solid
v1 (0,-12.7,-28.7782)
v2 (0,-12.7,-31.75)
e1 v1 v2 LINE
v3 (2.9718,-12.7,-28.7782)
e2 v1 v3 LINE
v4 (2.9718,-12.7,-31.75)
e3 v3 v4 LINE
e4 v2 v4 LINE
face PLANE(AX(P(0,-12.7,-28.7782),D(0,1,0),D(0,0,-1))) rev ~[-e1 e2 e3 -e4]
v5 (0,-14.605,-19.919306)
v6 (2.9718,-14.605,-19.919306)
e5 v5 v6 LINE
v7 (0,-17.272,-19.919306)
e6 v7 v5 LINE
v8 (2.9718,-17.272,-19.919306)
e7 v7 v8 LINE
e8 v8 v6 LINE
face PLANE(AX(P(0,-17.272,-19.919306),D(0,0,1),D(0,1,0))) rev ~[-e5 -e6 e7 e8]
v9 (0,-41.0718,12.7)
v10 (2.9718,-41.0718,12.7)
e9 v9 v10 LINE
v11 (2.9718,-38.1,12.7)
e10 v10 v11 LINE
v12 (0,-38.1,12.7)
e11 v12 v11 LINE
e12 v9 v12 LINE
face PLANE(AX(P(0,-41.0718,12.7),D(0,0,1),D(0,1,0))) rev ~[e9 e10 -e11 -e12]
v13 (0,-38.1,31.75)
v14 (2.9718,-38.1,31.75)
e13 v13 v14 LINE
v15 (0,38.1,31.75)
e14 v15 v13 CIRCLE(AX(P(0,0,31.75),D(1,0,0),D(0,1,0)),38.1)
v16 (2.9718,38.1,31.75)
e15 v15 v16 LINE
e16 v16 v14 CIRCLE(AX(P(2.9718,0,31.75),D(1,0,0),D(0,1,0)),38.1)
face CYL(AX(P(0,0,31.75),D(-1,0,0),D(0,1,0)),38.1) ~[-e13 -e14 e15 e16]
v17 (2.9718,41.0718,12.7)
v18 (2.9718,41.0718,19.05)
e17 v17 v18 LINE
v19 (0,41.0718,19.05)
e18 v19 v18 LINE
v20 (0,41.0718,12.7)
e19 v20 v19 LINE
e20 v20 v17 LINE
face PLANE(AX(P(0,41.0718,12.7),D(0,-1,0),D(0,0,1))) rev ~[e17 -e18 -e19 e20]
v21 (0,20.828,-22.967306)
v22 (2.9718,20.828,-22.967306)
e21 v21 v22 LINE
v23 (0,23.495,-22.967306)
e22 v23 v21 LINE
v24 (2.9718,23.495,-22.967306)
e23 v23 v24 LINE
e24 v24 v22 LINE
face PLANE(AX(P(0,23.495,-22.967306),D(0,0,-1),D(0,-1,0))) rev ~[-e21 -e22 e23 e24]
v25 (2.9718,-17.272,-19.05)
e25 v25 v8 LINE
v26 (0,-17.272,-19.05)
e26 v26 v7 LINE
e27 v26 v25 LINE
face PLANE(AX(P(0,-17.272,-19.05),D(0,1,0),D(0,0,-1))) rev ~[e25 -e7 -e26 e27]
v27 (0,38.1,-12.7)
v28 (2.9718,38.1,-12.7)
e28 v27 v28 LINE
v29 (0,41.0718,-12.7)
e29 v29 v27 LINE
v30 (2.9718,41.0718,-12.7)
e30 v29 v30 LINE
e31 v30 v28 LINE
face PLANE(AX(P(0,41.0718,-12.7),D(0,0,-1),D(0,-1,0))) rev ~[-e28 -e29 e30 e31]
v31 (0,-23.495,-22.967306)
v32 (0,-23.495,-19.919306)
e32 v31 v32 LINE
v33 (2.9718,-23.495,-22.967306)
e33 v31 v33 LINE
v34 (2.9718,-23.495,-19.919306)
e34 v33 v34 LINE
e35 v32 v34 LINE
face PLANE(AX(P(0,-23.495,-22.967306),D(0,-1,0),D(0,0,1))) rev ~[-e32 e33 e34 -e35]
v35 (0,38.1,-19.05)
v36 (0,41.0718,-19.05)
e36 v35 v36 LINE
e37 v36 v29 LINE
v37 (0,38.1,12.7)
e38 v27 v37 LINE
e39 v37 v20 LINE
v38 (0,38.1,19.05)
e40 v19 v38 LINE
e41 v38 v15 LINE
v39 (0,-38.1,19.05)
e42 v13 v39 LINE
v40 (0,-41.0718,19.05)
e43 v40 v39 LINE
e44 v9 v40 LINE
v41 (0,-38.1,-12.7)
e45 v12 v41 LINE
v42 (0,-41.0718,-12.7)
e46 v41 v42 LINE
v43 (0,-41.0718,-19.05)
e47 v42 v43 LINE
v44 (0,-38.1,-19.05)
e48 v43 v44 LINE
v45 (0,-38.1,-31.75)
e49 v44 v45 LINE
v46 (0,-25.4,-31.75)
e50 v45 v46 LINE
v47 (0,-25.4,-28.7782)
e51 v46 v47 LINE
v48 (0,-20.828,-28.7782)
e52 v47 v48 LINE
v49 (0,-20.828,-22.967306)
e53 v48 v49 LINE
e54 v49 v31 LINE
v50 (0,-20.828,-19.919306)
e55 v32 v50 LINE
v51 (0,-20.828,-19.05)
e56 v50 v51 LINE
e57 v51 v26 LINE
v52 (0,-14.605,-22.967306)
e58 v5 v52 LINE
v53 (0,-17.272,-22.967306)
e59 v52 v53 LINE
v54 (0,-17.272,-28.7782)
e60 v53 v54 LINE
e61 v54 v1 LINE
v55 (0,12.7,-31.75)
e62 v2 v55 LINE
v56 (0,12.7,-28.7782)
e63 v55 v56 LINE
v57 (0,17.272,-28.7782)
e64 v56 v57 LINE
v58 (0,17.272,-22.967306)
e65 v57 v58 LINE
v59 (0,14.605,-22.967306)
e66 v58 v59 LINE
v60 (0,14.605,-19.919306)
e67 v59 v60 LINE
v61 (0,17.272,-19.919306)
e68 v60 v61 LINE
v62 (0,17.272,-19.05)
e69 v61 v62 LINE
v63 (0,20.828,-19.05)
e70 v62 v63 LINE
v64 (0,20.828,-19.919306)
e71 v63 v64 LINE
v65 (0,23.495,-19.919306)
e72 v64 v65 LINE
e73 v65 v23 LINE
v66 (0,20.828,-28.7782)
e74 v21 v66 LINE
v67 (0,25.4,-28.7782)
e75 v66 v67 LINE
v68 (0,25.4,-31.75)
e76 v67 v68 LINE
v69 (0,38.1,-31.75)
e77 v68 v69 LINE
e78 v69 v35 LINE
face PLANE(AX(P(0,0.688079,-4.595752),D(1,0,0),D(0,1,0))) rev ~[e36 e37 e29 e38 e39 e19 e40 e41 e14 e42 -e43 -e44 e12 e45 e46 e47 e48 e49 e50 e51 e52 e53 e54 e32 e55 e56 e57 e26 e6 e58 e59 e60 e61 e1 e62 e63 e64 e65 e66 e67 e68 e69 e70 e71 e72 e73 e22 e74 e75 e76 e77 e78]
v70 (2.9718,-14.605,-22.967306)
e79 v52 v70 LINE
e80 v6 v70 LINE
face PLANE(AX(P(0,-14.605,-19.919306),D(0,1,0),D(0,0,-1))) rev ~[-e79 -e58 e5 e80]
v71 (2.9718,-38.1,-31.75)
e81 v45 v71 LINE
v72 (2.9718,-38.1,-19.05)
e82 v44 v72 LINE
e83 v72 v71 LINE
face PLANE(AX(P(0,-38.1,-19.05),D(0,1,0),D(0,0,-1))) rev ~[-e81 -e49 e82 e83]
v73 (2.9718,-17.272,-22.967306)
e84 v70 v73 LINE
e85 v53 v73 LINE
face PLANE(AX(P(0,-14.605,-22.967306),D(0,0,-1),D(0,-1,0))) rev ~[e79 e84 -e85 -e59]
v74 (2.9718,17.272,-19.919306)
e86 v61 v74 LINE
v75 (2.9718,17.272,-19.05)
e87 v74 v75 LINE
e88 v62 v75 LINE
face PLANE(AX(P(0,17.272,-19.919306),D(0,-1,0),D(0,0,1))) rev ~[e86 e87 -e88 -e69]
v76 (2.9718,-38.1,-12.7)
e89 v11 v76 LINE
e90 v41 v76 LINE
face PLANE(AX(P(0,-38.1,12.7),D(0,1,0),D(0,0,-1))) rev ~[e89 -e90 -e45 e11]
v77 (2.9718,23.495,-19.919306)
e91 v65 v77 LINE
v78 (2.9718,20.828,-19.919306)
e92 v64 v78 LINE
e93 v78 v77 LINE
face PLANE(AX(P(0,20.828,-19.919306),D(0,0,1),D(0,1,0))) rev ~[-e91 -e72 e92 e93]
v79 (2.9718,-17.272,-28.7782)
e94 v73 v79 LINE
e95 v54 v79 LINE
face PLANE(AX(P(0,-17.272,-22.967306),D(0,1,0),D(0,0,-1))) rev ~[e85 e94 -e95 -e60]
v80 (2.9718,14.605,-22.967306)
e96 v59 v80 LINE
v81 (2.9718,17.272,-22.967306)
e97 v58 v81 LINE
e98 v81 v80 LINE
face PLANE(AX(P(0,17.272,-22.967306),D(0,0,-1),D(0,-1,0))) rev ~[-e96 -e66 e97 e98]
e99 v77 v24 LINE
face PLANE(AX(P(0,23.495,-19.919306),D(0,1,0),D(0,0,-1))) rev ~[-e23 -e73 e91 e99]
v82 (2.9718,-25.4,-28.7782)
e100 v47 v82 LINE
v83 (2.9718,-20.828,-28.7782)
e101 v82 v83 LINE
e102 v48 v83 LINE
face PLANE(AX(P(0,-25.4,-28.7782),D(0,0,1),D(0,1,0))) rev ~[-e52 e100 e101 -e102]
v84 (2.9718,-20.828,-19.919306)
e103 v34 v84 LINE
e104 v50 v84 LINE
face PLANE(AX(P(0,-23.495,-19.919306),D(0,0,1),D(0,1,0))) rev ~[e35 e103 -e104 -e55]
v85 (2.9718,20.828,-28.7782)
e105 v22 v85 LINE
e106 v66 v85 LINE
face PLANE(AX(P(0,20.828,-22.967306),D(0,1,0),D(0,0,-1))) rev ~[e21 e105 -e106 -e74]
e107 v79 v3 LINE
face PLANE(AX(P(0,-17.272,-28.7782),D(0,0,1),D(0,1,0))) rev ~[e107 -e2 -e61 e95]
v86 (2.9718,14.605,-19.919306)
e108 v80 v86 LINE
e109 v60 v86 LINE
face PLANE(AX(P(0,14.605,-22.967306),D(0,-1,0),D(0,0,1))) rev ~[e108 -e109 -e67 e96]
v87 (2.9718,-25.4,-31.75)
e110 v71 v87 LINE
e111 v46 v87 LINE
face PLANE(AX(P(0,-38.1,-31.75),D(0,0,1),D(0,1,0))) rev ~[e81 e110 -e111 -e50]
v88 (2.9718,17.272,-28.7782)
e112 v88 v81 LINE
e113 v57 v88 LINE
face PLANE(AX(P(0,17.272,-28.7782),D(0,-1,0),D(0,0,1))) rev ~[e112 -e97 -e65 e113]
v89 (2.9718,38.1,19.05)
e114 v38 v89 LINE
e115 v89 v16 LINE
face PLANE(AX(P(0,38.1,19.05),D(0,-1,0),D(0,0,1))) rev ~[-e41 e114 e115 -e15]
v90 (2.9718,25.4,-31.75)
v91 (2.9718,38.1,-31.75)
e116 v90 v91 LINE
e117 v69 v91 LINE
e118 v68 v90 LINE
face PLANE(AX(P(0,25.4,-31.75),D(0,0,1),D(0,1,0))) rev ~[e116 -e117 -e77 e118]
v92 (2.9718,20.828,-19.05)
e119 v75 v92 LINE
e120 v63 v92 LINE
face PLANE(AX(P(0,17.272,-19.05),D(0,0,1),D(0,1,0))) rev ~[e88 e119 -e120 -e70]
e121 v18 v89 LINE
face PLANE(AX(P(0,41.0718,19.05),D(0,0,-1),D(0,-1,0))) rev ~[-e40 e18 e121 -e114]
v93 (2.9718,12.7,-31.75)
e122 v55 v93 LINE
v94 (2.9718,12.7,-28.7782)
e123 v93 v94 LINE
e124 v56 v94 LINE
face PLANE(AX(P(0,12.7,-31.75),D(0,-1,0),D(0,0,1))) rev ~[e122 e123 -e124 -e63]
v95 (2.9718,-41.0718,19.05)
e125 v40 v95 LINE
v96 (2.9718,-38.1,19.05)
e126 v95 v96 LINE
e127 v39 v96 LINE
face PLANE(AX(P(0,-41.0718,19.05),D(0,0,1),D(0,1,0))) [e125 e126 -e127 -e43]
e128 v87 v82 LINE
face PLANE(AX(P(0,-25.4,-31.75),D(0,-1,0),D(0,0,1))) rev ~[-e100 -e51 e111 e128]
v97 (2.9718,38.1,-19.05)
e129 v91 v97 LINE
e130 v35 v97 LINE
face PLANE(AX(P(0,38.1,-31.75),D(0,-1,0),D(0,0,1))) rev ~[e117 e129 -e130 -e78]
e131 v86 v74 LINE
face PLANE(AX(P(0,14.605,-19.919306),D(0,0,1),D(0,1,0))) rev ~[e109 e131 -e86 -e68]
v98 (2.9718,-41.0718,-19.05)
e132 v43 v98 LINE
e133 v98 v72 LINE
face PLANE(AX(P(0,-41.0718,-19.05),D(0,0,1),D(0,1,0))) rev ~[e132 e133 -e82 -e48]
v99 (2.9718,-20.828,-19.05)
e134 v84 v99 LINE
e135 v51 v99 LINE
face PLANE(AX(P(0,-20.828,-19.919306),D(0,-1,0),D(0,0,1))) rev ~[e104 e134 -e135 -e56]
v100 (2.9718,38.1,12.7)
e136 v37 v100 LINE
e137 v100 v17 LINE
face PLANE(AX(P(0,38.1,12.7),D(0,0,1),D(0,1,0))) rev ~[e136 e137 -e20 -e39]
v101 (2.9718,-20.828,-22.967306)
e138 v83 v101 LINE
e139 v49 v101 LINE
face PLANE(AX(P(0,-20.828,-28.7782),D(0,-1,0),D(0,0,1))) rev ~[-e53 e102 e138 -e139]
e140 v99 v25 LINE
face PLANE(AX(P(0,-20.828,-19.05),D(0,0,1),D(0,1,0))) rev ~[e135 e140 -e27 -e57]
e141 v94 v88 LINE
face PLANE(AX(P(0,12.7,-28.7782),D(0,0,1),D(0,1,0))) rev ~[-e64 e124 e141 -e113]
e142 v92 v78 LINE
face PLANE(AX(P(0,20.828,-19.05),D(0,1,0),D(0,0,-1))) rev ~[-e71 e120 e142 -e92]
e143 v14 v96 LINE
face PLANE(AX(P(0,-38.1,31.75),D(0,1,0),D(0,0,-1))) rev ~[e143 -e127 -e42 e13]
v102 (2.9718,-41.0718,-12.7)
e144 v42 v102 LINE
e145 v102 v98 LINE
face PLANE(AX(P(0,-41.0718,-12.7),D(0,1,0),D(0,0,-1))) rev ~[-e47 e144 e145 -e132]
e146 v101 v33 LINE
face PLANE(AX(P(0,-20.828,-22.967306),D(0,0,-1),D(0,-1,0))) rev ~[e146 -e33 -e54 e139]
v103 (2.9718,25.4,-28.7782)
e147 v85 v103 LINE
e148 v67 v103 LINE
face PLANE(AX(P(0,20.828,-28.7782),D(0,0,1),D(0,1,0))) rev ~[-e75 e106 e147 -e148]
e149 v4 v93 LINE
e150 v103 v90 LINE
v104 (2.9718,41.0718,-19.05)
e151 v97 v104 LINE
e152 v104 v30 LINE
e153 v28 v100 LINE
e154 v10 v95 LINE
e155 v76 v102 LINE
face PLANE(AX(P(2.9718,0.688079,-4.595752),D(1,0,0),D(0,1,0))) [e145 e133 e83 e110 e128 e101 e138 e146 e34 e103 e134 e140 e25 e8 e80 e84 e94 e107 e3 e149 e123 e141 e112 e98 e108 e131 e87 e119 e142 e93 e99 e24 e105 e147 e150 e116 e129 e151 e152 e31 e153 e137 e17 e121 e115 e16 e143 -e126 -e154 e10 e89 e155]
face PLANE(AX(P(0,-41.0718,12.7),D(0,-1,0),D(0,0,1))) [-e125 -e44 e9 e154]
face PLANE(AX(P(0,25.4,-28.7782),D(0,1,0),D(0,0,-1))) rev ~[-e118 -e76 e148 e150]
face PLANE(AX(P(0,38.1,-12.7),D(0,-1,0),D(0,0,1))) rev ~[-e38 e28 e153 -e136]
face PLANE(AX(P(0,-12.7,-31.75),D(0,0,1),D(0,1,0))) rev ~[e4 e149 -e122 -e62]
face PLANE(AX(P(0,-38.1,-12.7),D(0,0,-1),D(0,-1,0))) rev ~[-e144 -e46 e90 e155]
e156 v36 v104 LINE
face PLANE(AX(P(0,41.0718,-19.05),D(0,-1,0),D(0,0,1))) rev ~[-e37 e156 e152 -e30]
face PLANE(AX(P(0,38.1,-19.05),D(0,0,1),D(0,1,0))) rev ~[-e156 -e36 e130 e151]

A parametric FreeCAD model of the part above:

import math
import FreeCAD as App
import Part
import Sketcher
Q = App.Units.Quantity

doc = App.newDocument("Part")
body = doc.addObject("PartDesign::Body", "Body")

# Sketch on YZ plane
sketch1 = body.newObject("Sketcher::SketchObject", "Sketch")
sketch1.AttachmentSupport = (doc.getObject("YZ_Plane"), [""])
sketch1.MapMode = "FlatFace"
sketch1.addGeometry([
    Part.LineSegment(App.Vector(38.1, 12.7, 0), App.Vector(41.0718, 12.7, 0)),  # 0
    Part.LineSegment(App.Vector(41.0718, 12.7, 0), App.Vector(41.0718, 19.05, 0)),  # 1
    Part.LineSegment(App.Vector(41.0718, 19.05, 0), App.Vector(38.1, 19.05, 0)),  # 2
    Part.LineSegment(App.Vector(38.1, 19.05, 0), App.Vector(38.1, 31.75, 0)),  # 3
    Part.ArcOfCircle(Part.Circle(App.Vector(0, 31.75, 0), App.Vector(0, 0, 1), 38.1), math.radians(0), math.radians(180)),  # 4
    Part.LineSegment(App.Vector(-38.1, 31.75, 0), App.Vector(-38.1, 19.05, 0)),  # 5
    Part.LineSegment(App.Vector(-38.1, 19.05, 0), App.Vector(-41.0718, 19.05, 0)),  # 6
    Part.LineSegment(App.Vector(-41.0718, 19.05, 0), App.Vector(-41.0718, 12.7, 0)),  # 7
    Part.LineSegment(App.Vector(-41.0718, 12.7, 0), App.Vector(-38.1, 12.7, 0)),  # 8
    Part.LineSegment(App.Vector(-38.1, 12.7, 0), App.Vector(-38.1, -12.7, 0)),  # 9
    Part.LineSegment(App.Vector(-38.1, -12.7, 0), App.Vector(-41.0718, -12.7, 0)),  # 10
    Part.LineSegment(App.Vector(-41.0718, -12.7, 0), App.Vector(-41.0718, -19.05, 0)),  # 11
    Part.LineSegment(App.Vector(-41.0718, -19.05, 0), App.Vector(-38.1, -19.05, 0)),  # 12
    Part.LineSegment(App.Vector(-38.1, -19.05, 0), App.Vector(-38.1, -31.75, 0)),  # 13
    Part.LineSegment(App.Vector(-38.1, -31.75, 0), App.Vector(-25.4, -31.75, 0)),  # 14
    Part.LineSegment(App.Vector(-25.4, -31.75, 0), App.Vector(-25.4, -28.7782, 0)),  # 15
    Part.LineSegment(App.Vector(-25.4, -28.7782, 0), App.Vector(-20.828, -28.7782, 0)),  # 16
    Part.LineSegment(App.Vector(-20.828, -28.7782, 0), App.Vector(-20.828, -22.967306, 0)),  # 17
    Part.LineSegment(App.Vector(-20.828, -22.967306, 0), App.Vector(-23.495, -22.967306, 0)),  # 18
    Part.LineSegment(App.Vector(-23.495, -22.967306, 0), App.Vector(-23.495, -19.919306, 0)),  # 19
    Part.LineSegment(App.Vector(-23.495, -19.919306, 0), App.Vector(-20.828, -19.919306, 0)),  # 20
    Part.LineSegment(App.Vector(-20.828, -19.919306, 0), App.Vector(-20.828, -19.05, 0)),  # 21
    Part.LineSegment(App.Vector(-20.828, -19.05, 0), App.Vector(-17.272, -19.05, 0)),  # 22
    Part.LineSegment(App.Vector(-17.272, -19.05, 0), App.Vector(-17.272, -19.919306, 0)),  # 23
    Part.LineSegment(App.Vector(-17.272, -19.919306, 0), App.Vector(-14.605, -19.919306, 0)),  # 24
    Part.LineSegment(App.Vector(-14.605, -19.919306, 0), App.Vector(-14.605, -22.967306, 0)),  # 25
    Part.LineSegment(App.Vector(-14.605, -22.967306, 0), App.Vector(-17.272, -22.967306, 0)),  # 26
    Part.LineSegment(App.Vector(-17.272, -22.967306, 0), App.Vector(-17.272, -28.7782, 0)),  # 27
    Part.LineSegment(App.Vector(-17.272, -28.7782, 0), App.Vector(-12.7, -28.7782, 0)),  # 28
    Part.LineSegment(App.Vector(-12.7, -28.7782, 0), App.Vector(-12.7, -31.75, 0)),  # 29
    Part.LineSegment(App.Vector(-12.7, -31.75, 0), App.Vector(12.7, -31.75, 0)),  # 30
    Part.LineSegment(App.Vector(12.7, -31.75, 0), App.Vector(12.7, -28.7782, 0)),  # 31
    Part.LineSegment(App.Vector(12.7, -28.7782, 0), App.Vector(17.272, -28.7782, 0)),  # 32
    Part.LineSegment(App.Vector(17.272, -28.7782, 0), App.Vector(17.272, -22.967306, 0)),  # 33
    Part.LineSegment(App.Vector(17.272, -22.967306, 0), App.Vector(14.605, -22.967306, 0)),  # 34
    Part.LineSegment(App.Vector(14.605, -22.967306, 0), App.Vector(14.605, -19.919306, 0)),  # 35
    Part.LineSegment(App.Vector(14.605, -19.919306, 0), App.Vector(17.272, -19.919306, 0)),  # 36
    Part.LineSegment(App.Vector(17.272, -19.919306, 0), App.Vector(17.272, -19.05, 0)),  # 37
    Part.LineSegment(App.Vector(17.272, -19.05, 0), App.Vector(20.828, -19.05, 0)),  # 38
    Part.LineSegment(App.Vector(20.828, -19.05, 0), App.Vector(20.828, -19.919306, 0)),  # 39
    Part.LineSegment(App.Vector(20.828, -19.919306, 0), App.Vector(23.495, -19.919306, 0)),  # 40
    Part.LineSegment(App.Vector(23.495, -19.919306, 0), App.Vector(23.495, -22.967306, 0)),  # 41
    Part.LineSegment(App.Vector(23.495, -22.967306, 0), App.Vector(20.828, -22.967306, 0)),  # 42
    Part.LineSegment(App.Vector(20.828, -22.967306, 0), App.Vector(20.828, -28.7782, 0)),  # 43
    Part.LineSegment(App.Vector(20.828, -28.7782, 0), App.Vector(25.4, -28.7782, 0)),  # 44
    Part.LineSegment(App.Vector(25.4, -28.7782, 0), App.Vector(25.4, -31.75, 0)),  # 45
    Part.LineSegment(App.Vector(25.4, -31.75, 0), App.Vector(38.1, -31.75, 0)),  # 46
    Part.LineSegment(App.Vector(38.1, -31.75, 0), App.Vector(38.1, -19.05, 0)),  # 47
    Part.LineSegment(App.Vector(38.1, -19.05, 0), App.Vector(41.0718, -19.05, 0)),  # 48
    Part.LineSegment(App.Vector(41.0718, -19.05, 0), App.Vector(41.0718, -12.7, 0)),  # 49
    Part.LineSegment(App.Vector(41.0718, -12.7, 0), App.Vector(38.1, -12.7, 0)),  # 50
    Part.LineSegment(App.Vector(38.1, -12.7, 0), App.Vector(38.1, 12.7, 0)),  # 51
], False)
sketch1.addConstraint([
    Sketcher.Constraint("Coincident", 0, 2, 1, 1),
    Sketcher.Constraint("Coincident", 1, 2, 2, 1),
    Sketcher.Constraint("Coincident", 2, 2, 3, 1),
    Sketcher.Constraint("Tangent", 3, 2, 4, 1),
    Sketcher.Constraint("Tangent", 4, 2, 5, 1),
    Sketcher.Constraint("Coincident", 5, 2, 6, 1),
    Sketcher.Constraint("Coincident", 6, 2, 7, 1),
    Sketcher.Constraint("Coincident", 7, 2, 8, 1),
    Sketcher.Constraint("Coincident", 8, 2, 9, 1),
    Sketcher.Constraint("Coincident", 9, 2, 10, 1),
    Sketcher.Constraint("Coincident", 10, 2, 11, 1),
    Sketcher.Constraint("Coincident", 11, 2, 12, 1),
    Sketcher.Constraint("Coincident", 12, 2, 13, 1),
    Sketcher.Constraint("Coincident", 13, 2, 14, 1),
    Sketcher.Constraint("Coincident", 14, 2, 15, 1),
    Sketcher.Constraint("Coincident", 15, 2, 16, 1),
    Sketcher.Constraint("Coincident", 16, 2, 17, 1),
    Sketcher.Constraint("Coincident", 17, 2, 18, 1),
    Sketcher.Constraint("Coincident", 18, 2, 19, 1),
    Sketcher.Constraint("Coincident", 19, 2, 20, 1),
    Sketcher.Constraint("Coincident", 20, 2, 21, 1),
    Sketcher.Constraint("Coincident", 21, 2, 22, 1),
    Sketcher.Constraint("Coincident", 22, 2, 23, 1),
    Sketcher.Constraint("Coincident", 23, 2, 24, 1),
    Sketcher.Constraint("Coincident", 24, 2, 25, 1),
    Sketcher.Constraint("Coincident", 25, 2, 26, 1),
    Sketcher.Constraint("Coincident", 26, 2, 27, 1),
    Sketcher.Constraint("Coincident", 27, 2, 28, 1),
    Sketcher.Constraint("Coincident", 28, 2, 29, 1),
    Sketcher.Constraint("Coincident", 29, 2, 30, 1),
    Sketcher.Constraint("Coincident", 30, 2, 31, 1),
    Sketcher.Constraint("Coincident", 31, 2, 32, 1),
    Sketcher.Constraint("Coincident", 32, 2, 33, 1),
    Sketcher.Constraint("Coincident", 33, 2, 34, 1),
    Sketcher.Constraint("Coincident", 34, 2, 35, 1),
    Sketcher.Constraint("Coincident", 35, 2, 36, 1),
    Sketcher.Constraint("Coincident", 36, 2, 37, 1),
    Sketcher.Constraint("Coincident", 37, 2, 38, 1),
    Sketcher.Constraint("Coincident", 38, 2, 39, 1),
    Sketcher.Constraint("Coincident", 39, 2, 40, 1),
    Sketcher.Constraint("Coincident", 40, 2, 41, 1),
    Sketcher.Constraint("Coincident", 41, 2, 42, 1),
    Sketcher.Constraint("Coincident", 42, 2, 43, 1),
    Sketcher.Constraint("Coincident", 43, 2, 44, 1),
    Sketcher.Constraint("Coincident", 44, 2, 45, 1),
    Sketcher.Constraint("Coincident", 45, 2, 46, 1),
    Sketcher.Constraint("Coincident", 46, 2, 47, 1),
    Sketcher.Constraint("Coincident", 47, 2, 48, 1),
    Sketcher.Constraint("Coincident", 48, 2, 49, 1),
    Sketcher.Constraint("Coincident", 49, 2, 50, 1),
    Sketcher.Constraint("Coincident", 50, 2, 51, 1),
    Sketcher.Constraint("Coincident", 51, 2, 0, 1),
    Sketcher.Constraint("Horizontal", 0),
    Sketcher.Constraint("Vertical", 1),
    Sketcher.Constraint("Horizontal", 2),
    Sketcher.Constraint("Vertical", 3),
    Sketcher.Constraint("Vertical", 5),
    Sketcher.Constraint("Horizontal", 6),
    Sketcher.Constraint("Vertical", 7),
    Sketcher.Constraint("Horizontal", 8),
    Sketcher.Constraint("Vertical", 9),
    Sketcher.Constraint("Horizontal", 10),
    Sketcher.Constraint("Vertical", 11),
    Sketcher.Constraint("Horizontal", 12),
    Sketcher.Constraint("Vertical", 13),
    Sketcher.Constraint("Horizontal", 14),
    Sketcher.Constraint("Vertical", 15),
    Sketcher.Constraint("Horizontal", 16),
    Sketcher.Constraint("Vertical", 17),
    Sketcher.Constraint("Horizontal", 18),
    Sketcher.Constraint("Vertical", 19),
    Sketcher.Constraint("Horizontal", 20),
    Sketcher.Constraint("Vertical", 21),
    Sketcher.Constraint("Horizontal", 22),
    Sketcher.Constraint("Vertical", 23),
    Sketcher.Constraint("Horizontal", 24),
    Sketcher.Constraint("Vertical", 25),
    Sketcher.Constraint("Horizontal", 26),
    Sketcher.Constraint("Vertical", 27),
    Sketcher.Constraint("Horizontal", 28),
    Sketcher.Constraint("Vertical", 29),
    Sketcher.Constraint("Horizontal", 30),
    Sketcher.Constraint("Vertical", 31),
    Sketcher.Constraint("Horizontal", 32),
    Sketcher.Constraint("Vertical", 33),
    Sketcher.Constraint("Horizontal", 34),
    Sketcher.Constraint("Vertical", 35),
    Sketcher.Constraint("Horizontal", 36),
    Sketcher.Constraint("Vertical", 37),
    Sketcher.Constraint("Horizontal", 38),
    Sketcher.Constraint("Vertical", 39),
    Sketcher.Constraint("Horizontal", 40),
    Sketcher.Constraint("Vertical", 41),
    Sketcher.Constraint("Horizontal", 42),
    Sketcher.Constraint("Vertical", 43),
    Sketcher.Constraint("Horizontal", 44),
    Sketcher.Constraint("Vertical", 45),
    Sketcher.Constraint("Horizontal", 46),
    Sketcher.Constraint("Vertical", 47),
    Sketcher.Constraint("Horizontal", 48),
    Sketcher.Constraint("Vertical", 49),
    Sketcher.Constraint("Horizontal", 50),
    Sketcher.Constraint("Vertical", 51),
    Sketcher.Constraint("Symmetric", 0, 2, 10, 2, -1, 1),
    Sketcher.Constraint("Symmetric", 2, 2, 12, 2, -1, 1),
    Sketcher.Constraint("Symmetric", 4, 2, 46, 2, -1, 1),
    Sketcher.Constraint("Symmetric", 6, 2, 48, 2, -1, 1),
    Sketcher.Constraint("Symmetric", 8, 2, 50, 2, -1, 1),
    Sketcher.Constraint("Symmetric", 2, 2, 5, 2, -2),
    Sketcher.Constraint("Symmetric", 0, 2, 7, 2, -2),
    Sketcher.Constraint("Symmetric", 28, 2, 31, 2, -2),
    Sketcher.Constraint("Symmetric", 26, 2, 33, 2, -2),
    Sketcher.Constraint("Symmetric", 24, 2, 35, 2, -2),
    Sketcher.Constraint("Symmetric", 22, 2, 37, 2, -2),
    Sketcher.Constraint("Symmetric", 20, 2, 39, 2, -2),
    Sketcher.Constraint("Symmetric", 18, 2, 41, 2, -2),
    Sketcher.Constraint("Symmetric", 16, 2, 43, 2, -2),
    Sketcher.Constraint("Symmetric", 14, 2, 45, 2, -2),
    Sketcher.Constraint("Horizontal", 12, 2, 21, 2),
    Sketcher.Constraint("Horizontal", 20, 2, 23, 2),
    Sketcher.Constraint("Horizontal", 18, 2, 25, 2),
    Sketcher.Constraint("Horizontal", 16, 2, 27, 2),
    Sketcher.Constraint("Horizontal", 14, 2, 29, 2),
    Sketcher.Constraint("Vertical", 5, 2, 8, 2),
    Sketcher.Constraint("Vertical", 17, 2, 20, 2),
    Sketcher.Constraint("Vertical", 23, 2, 26, 2),
    Sketcher.Constraint("Equal", 20, 24),
    Sketcher.Constraint("Equal", 16, 28),
    Sketcher.Constraint("Equal", 46, 3),
    Sketcher.Constraint("Equal", 30, 9),
    Sketcher.Constraint("Equal", 50, 15),
    Sketcher.Constraint("Radius", 4, Q("1.5 in")),
    Sketcher.Constraint("DistanceX", 30, 1, 30, 2, Q("1 in")),
    Sketcher.Constraint("DistanceX", 14, 1, 14, 2, Q("0.5 in")),
    Sketcher.Constraint("DistanceX", 16, 1, 16, 2, Q("0.18 in")),
    Sketcher.Constraint("DistanceY", 1, 1, 1, 2, Q("0.25 in")),
    Sketcher.Constraint("DistanceY", 19, 1, 19, 2, Q("0.12 in")),
    Sketcher.Constraint("DistanceX", 0, 1, 0, 2, Q("0.117 in")),
    Sketcher.Constraint("DistanceX", 18, 2, 18, 1, Q("0.105 in")),
    Sketcher.Constraint("DistanceY", 17, 1, 17, 2, Q("5.810894 mm")),
])
pad1 = body.newObject("PartDesign::Pad", "Pad")
pad1.Profile = sketch1
pad1.Length = Q("0.117 in")

doc.recompute()
